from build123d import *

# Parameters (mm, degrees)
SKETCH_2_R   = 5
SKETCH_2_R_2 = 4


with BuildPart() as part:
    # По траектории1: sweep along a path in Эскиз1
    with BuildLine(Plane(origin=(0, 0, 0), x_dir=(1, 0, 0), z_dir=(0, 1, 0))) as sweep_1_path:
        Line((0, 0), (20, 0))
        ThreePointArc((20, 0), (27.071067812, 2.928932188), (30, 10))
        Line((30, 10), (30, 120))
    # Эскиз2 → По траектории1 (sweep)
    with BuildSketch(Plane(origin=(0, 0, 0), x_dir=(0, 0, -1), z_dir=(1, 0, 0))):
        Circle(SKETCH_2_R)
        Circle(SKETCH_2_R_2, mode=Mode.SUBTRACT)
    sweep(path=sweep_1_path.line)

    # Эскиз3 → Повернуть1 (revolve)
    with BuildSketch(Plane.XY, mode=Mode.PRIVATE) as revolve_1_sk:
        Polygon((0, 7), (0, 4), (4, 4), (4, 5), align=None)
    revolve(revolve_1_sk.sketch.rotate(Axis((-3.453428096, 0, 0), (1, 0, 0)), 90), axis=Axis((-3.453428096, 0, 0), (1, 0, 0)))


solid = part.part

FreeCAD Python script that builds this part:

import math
import FreeCAD as App
import Part
import Sketcher
Q = App.Units.Quantity


def add_polygon(sketch, points):
    """Adds a closed chain of lines whose ends are joined by coincident constraints."""
    first, n = sketch.GeometryCount, len(points)
    for a, b in zip(points, points[1:] + points[:1]):
        sketch.addGeometry(Part.LineSegment(App.Vector(*a, 0), App.Vector(*b, 0)), False)
    for i in range(n):
        sketch.addConstraint(Sketcher.Constraint("Coincident", first + i, 2, first + (i + 1) % n, 1))

doc = App.newDocument("Part")
body = doc.addObject("PartDesign::Body", "Body")

# Sketch on YZ plane
sketch1 = doc.addObject("Sketcher::SketchObject", "Sketch")
body.addObject(sketch1)
sketch1.AttachmentSupport = (doc.YZ_Plane, [""])
sketch1.MapMode = "FlatFace"
sketch1.addGeometry(Part.Circle(App.Vector(0, 0, 0), App.Vector(0, 0, 1), 5), False)
sketch1.addGeometry(Part.Circle(App.Vector(0, 0, 0), App.Vector(0, 0, 1), 4), False)
sketch1.addConstraint(Sketcher.Constraint("Coincident", 0, 3, -1, 1))
sketch1.addConstraint(Sketcher.Constraint("Coincident", 1, 3, -1, 1))
sketch1.addConstraint(Sketcher.Constraint("Diameter", 0, Q("10 mm")))
sketch1.addConstraint(Sketcher.Constraint("Diameter", 1, Q("8 mm")))

# Sketch on XZ plane
sketch2 = doc.addObject("Sketcher::SketchObject", "Sketch001")
body.addObject(sketch2)
sketch2.AttachmentSupport = (doc.XZ_Plane, [""])
sketch2.MapMode = "FlatFace"
sketch2.addGeometry(Part.LineSegment(App.Vector(0, 0, 0), App.Vector(20, 0, 0)), False)
sketch2.addGeometry(Part.ArcOfCircle(Part.Circle(App.Vector(20, -10, 0), App.Vector(0, 0, 1), 10), math.radians(0), math.radians(90)), False)
sketch2.addGeometry(Part.LineSegment(App.Vector(30, -10, 0), App.Vector(30, -120, 0)), False)
sketch2.addConstraint(Sketcher.Constraint("Tangent", 0, 2, 1, 2))
sketch2.addConstraint(Sketcher.Constraint("Tangent", 1, 1, 2, 1))
sketch2.addConstraint(Sketcher.Constraint("Horizontal", 0))
sketch2.addConstraint(Sketcher.Constraint("Vertical", 2))
sketch2.addConstraint(Sketcher.Constraint("Coincident", 0, 1, -1, 1))
sketch2.addConstraint(Sketcher.Constraint("Radius", 1, Q("10 mm")))
sketch2.addConstraint(Sketcher.Constraint("DistanceX", 0, 1, 0, 2, Q("20 mm")))
sketch2.addConstraint(Sketcher.Constraint("DistanceY", 2, 2, 2, 1, Q("110 mm")))
doc.recompute()

additivepipe = doc.addObject("PartDesign::AdditivePipe", "AdditivePipe")
body.addObject(additivepipe)
additivepipe.Profile = sketch1
additivepipe.Spine = (sketch2, ["Edge1", "Edge2", "Edge3"])

# Sketch on XY plane
sketch3 = doc.addObject("Sketcher::SketchObject", "Sketch002")
body.addObject(sketch3)
sketch3.AttachmentSupport = (doc.XY_Plane, [""])
sketch3.MapMode = "FlatFace"
add_polygon(sketch3, [(0, 7), (0, 4), (4, 4), (4, 5)])  # lines 0-3
sketch3.addConstraint(Sketcher.Constraint("Vertical", 0))
sketch3.addConstraint(Sketcher.Constraint("Horizontal", 1))
sketch3.addConstraint(Sketcher.Constraint("Vertical", 2))
sketch3.addConstraint(Sketcher.Constraint("PointOnObject", 0, 2, -2))
sketch3.addConstraint(Sketcher.Constraint("DistanceX", 1, 1, 1, 2, Q("4 mm")))
sketch3.addConstraint(Sketcher.Constraint("DistanceY", 0, 2, 0, 1, Q("3 mm")))
sketch3.addConstraint(Sketcher.Constraint("DistanceY", 2, 1, 2, 2, Q("1 mm")))
sketch3.addConstraint(Sketcher.Constraint("DistanceY", -1, 1, 0, 2, Q("4 mm")))
revolution = doc.addObject("PartDesign::Revolution", "Revolution")
body.addObject(revolution)
revolution.Profile = sketch3
revolution.ReferenceAxis = (sketch3, ["H_Axis"])
revolution.Angle = 360

doc.recompute()
